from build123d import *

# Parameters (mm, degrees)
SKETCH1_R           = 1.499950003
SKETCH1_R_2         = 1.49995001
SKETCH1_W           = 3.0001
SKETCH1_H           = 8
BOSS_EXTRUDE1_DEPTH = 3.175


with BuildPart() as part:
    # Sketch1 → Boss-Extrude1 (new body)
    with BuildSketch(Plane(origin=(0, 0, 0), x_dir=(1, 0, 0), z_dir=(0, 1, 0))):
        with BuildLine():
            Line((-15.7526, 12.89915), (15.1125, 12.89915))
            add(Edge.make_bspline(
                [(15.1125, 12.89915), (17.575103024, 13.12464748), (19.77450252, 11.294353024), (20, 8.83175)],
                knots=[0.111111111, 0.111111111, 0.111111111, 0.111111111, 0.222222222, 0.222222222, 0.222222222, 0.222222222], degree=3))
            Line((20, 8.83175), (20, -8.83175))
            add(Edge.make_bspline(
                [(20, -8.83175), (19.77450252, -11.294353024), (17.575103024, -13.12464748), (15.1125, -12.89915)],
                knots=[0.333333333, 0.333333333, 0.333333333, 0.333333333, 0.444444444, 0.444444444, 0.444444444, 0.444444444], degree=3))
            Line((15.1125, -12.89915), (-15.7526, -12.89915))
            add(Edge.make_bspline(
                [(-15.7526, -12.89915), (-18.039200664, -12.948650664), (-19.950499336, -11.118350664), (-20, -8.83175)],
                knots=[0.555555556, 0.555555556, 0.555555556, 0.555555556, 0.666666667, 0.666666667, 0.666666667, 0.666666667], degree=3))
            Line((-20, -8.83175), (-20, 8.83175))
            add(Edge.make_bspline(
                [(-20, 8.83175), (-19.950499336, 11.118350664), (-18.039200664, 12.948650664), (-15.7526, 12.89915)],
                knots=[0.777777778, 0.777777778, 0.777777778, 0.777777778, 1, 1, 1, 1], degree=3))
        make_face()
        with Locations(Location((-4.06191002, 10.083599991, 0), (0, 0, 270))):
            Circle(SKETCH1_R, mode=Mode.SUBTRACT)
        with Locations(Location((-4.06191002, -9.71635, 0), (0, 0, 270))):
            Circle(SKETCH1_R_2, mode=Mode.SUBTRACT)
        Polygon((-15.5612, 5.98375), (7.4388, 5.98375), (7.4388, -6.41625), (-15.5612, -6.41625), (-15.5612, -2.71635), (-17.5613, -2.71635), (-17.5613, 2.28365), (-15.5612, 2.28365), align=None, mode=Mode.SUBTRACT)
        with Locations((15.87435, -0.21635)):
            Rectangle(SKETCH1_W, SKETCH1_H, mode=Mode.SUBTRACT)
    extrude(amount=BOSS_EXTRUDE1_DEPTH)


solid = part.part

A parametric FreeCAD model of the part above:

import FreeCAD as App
import Part
import Sketcher
Q = App.Units.Quantity

doc = App.newDocument("Part")
params = doc.addObject("Spreadsheet::Sheet", "Params")
for row, (alias, value) in enumerate([
    ("sketch1_width", "23 mm"),
    ("sketch1_height", "8 mm"),
    ("sketch1_height2", "5 mm"),
    ("sketch1_height3", "12.4 mm"),
    ("pad1_length", "3.175 mm"),
], start=1):
    params.set(f"A{row}", alias)
    params.set(f"B{row}", "=" + value)
    params.setAlias(f"B{row}", alias)

body = doc.addObject("PartDesign::Body", "Body")

sketch1 = body.newObject("Sketcher::SketchObject", "Sketch")
sketch1.AttachmentSupport = (doc.getObject("XZ_Plane"), [""])
sketch1.MapMode = "FlatFace"
sketch1.addGeometry([
    Part.LineSegment(App.Vector(15.1125, -12.89915, 0), App.Vector(-15.7526, -12.89915, 0)),
    Part.BSplineCurve([App.Vector(-20, -8.83175, 0), App.Vector(-19.950499, -11.118351, 0), App.Vector(-18.039201, -12.948651, 0), App.Vector(-15.7526, -12.89915, 0)], [4, 4], [0.777777778, 1], False, 3, [1, 1, 1, 1], False),
    Part.LineSegment(App.Vector(-20, -8.83175, 0), App.Vector(-20, 8.83175, 0)),
    Part.BSplineCurve([App.Vector(-15.7526, 12.89915, 0), App.Vector(-18.039201, 12.948651, 0), App.Vector(-19.950499, 11.118351, 0), App.Vector(-20, 8.83175, 0)], [4, 4], [0.555555556, 0.666666667], False, 3, [1, 1, 1, 1], False),
    Part.LineSegment(App.Vector(-15.7526, 12.89915, 0), App.Vector(15.1125, 12.89915, 0)),
    Part.BSplineCurve([App.Vector(20, 8.83175, 0), App.Vector(19.774503, 11.294353, 0), App.Vector(17.575103, 13.124647, 0), App.Vector(15.1125, 12.89915, 0)], [4, 4], [0.333333333, 0.444444444], False, 3, [1, 1, 1, 1], False),
    Part.LineSegment(App.Vector(20, 8.83175, 0), App.Vector(20, -8.83175, 0)),
    Part.BSplineCurve([App.Vector(15.1125, -12.89915, 0), App.Vector(17.575103, -13.124647, 0), App.Vector(19.774503, -11.294353, 0), App.Vector(20, -8.83175, 0)], [4, 4], [0.111111111, 0.222222222], False, 3, [1, 1, 1, 1], False),
    Part.LineSegment(App.Vector(14.3743, 4.21635, 0), App.Vector(14.3743, -3.78365, 0)),
    Part.LineSegment(App.Vector(14.3743, -3.78365, 0), App.Vector(17.3744, -3.78365, 0)),
    Part.LineSegment(App.Vector(17.3744, -3.78365, 0), App.Vector(17.3744, 4.21635, 0)),
    Part.LineSegment(App.Vector(17.3744, 4.21635, 0), App.Vector(14.3743, 4.21635, 0)),
    Part.Circle(App.Vector(-4.06191, 9.71635, 0), App.Vector(0, 0, 1), 1.49995),
    Part.LineSegment(App.Vector(-15.5612, -5.98375, 0), App.Vector(7.4388, -5.98375, 0)),
    Part.LineSegment(App.Vector(7.4388, -5.98375, 0), App.Vector(7.4388, 6.41625, 0)),
    Part.LineSegment(App.Vector(7.4388, 6.41625, 0), App.Vector(-15.5612, 6.41625, 0)),
    Part.LineSegment(App.Vector(-15.5612, 6.41625, 0), App.Vector(-15.5612, 2.71635, 0)),
    Part.LineSegment(App.Vector(-15.5612, 2.71635, 0), App.Vector(-17.5613, 2.71635, 0)),
    Part.LineSegment(App.Vector(-17.5613, 2.71635, 0), App.Vector(-17.5613, -2.28365, 0)),
    Part.LineSegment(App.Vector(-17.5613, -2.28365, 0), App.Vector(-15.5612, -2.28365, 0)),
    Part.LineSegment(App.Vector(-15.5612, -2.28365, 0), App.Vector(-15.5612, -5.98375, 0)),
    Part.Circle(App.Vector(-4.06191, -10.0836, 0), App.Vector(0, 0, 1), 1.49995),
], False)
sketch1.addConstraint([
    Sketcher.Constraint("Block", 1),
    Sketcher.Constraint("Block", 3),
    Sketcher.Constraint("Block", 5),
    Sketcher.Constraint("Block", 7),
    Sketcher.Constraint("Coincident", 0, 2, 1, 2),
    Sketcher.Constraint("Coincident", 1, 1, 2, 1),
    Sketcher.Constraint("Coincident", 2, 2, 3, 2),
    Sketcher.Constraint("Coincident", 3, 1, 4, 1),
    Sketcher.Constraint("Coincident", 4, 2, 5, 2),
    Sketcher.Constraint("Coincident", 5, 1, 6, 1),
    Sketcher.Constraint("Coincident", 6, 2, 7, 2),
    Sketcher.Constraint("Coincident", 7, 1, 0, 1),
    Sketcher.Constraint("Coincident", 8, 2, 9, 1),
    Sketcher.Constraint("Coincident", 9, 2, 10, 1),
    Sketcher.Constraint("Coincident", 10, 2, 11, 1),
    Sketcher.Constraint("Coincident", 11, 2, 8, 1),
    Sketcher.Constraint("Coincident", 13, 2, 14, 1),
    Sketcher.Constraint("Coincident", 14, 2, 15, 1),
    Sketcher.Constraint("Coincident", 15, 2, 16, 1),
    Sketcher.Constraint("Coincident", 16, 2, 17, 1),
    Sketcher.Constraint("Coincident", 17, 2, 18, 1),
    Sketcher.Constraint("Coincident", 18, 2, 19, 1),
    Sketcher.Constraint("Coincident", 19, 2, 20, 1),
    Sketcher.Constraint("Coincident", 20, 2, 13, 1),
    Sketcher.Constraint("Vertical", 8),
    Sketcher.Constraint("Horizontal", 9),
    Sketcher.Constraint("Vertical", 10),
    Sketcher.Constraint("Horizontal", 11),
    Sketcher.Constraint("Horizontal", 13),
    Sketcher.Constraint("Vertical", 14),
    Sketcher.Constraint("Horizontal", 15),
    Sketcher.Constraint("Vertical", 16),
    Sketcher.Constraint("Horizontal", 17),
    Sketcher.Constraint("Vertical", 18),
    Sketcher.Constraint("Horizontal", 19),
    Sketcher.Constraint("Vertical", 20),
    Sketcher.Constraint("Equal", 12, 21),
    Sketcher.Constraint("Vertical", 12, 3, 21, 3),
    Sketcher.Constraint("Vertical", 16, 2, 19, 2),
    Sketcher.Constraint("DistanceX", 13, 1, 13, 2, Q("23 mm")),
    Sketcher.Constraint("DistanceY", 8, 2, 8, 1, Q("8 mm")),
    Sketcher.Constraint("DistanceY", 18, 2, 18, 1, Q("5 mm")),
    Sketcher.Constraint("DistanceY", 14, 1, 14, 2, Q("12.4 mm")),
    Sketcher.Constraint("DistanceY", 16, 2, 12, 3, Q("7 mm")),
    Sketcher.Constraint("Diameter", 12, Q("2.9999 mm")),
    Sketcher.Constraint("DistanceY", 8, 2, 12, 3, Q("13.5 mm")),
    Sketcher.Constraint("DistanceX", 9, 1, 9, 2, Q("3.0001 mm")),
    Sketcher.Constraint("DistanceX", 17, 2, 17, 1, Q("2.0001 mm")),
    Sketcher.Constraint("DistanceY", 16, 2, 16, 1, Q("3.6999 mm")),
    Sketcher.Constraint("DistanceY", 6, 2, 13, 2, Q("2.848 mm")),
    Sketcher.Constraint("DistanceY", 21, 3, -1, 1, Q("10.0836 mm")),
    Sketcher.Constraint("DistanceX", -1, 1, 8, 2, Q("14.3743 mm")),
    Sketcher.Constraint("DistanceX", -1, 1, 13, 2, Q("7.4388 mm")),
    Sketcher.Constraint("DistanceX", 12, 3, -1, 1, Q("4.06191 mm")),
])
sketch1.setExpression("Constraints[39]", "Params.sketch1_width")
sketch1.setExpression("Constraints[40]", "Params.sketch1_height")
sketch1.setExpression("Constraints[41]", "Params.sketch1_height2")
sketch1.setExpression("Constraints[42]", "Params.sketch1_height3")
pad1 = body.newObject("PartDesign::Pad", "Pad")
pad1.Profile = sketch1
pad1.setExpression("Length", "Params.pad1_length")
pad1.Reversed = True

doc.recompute()
